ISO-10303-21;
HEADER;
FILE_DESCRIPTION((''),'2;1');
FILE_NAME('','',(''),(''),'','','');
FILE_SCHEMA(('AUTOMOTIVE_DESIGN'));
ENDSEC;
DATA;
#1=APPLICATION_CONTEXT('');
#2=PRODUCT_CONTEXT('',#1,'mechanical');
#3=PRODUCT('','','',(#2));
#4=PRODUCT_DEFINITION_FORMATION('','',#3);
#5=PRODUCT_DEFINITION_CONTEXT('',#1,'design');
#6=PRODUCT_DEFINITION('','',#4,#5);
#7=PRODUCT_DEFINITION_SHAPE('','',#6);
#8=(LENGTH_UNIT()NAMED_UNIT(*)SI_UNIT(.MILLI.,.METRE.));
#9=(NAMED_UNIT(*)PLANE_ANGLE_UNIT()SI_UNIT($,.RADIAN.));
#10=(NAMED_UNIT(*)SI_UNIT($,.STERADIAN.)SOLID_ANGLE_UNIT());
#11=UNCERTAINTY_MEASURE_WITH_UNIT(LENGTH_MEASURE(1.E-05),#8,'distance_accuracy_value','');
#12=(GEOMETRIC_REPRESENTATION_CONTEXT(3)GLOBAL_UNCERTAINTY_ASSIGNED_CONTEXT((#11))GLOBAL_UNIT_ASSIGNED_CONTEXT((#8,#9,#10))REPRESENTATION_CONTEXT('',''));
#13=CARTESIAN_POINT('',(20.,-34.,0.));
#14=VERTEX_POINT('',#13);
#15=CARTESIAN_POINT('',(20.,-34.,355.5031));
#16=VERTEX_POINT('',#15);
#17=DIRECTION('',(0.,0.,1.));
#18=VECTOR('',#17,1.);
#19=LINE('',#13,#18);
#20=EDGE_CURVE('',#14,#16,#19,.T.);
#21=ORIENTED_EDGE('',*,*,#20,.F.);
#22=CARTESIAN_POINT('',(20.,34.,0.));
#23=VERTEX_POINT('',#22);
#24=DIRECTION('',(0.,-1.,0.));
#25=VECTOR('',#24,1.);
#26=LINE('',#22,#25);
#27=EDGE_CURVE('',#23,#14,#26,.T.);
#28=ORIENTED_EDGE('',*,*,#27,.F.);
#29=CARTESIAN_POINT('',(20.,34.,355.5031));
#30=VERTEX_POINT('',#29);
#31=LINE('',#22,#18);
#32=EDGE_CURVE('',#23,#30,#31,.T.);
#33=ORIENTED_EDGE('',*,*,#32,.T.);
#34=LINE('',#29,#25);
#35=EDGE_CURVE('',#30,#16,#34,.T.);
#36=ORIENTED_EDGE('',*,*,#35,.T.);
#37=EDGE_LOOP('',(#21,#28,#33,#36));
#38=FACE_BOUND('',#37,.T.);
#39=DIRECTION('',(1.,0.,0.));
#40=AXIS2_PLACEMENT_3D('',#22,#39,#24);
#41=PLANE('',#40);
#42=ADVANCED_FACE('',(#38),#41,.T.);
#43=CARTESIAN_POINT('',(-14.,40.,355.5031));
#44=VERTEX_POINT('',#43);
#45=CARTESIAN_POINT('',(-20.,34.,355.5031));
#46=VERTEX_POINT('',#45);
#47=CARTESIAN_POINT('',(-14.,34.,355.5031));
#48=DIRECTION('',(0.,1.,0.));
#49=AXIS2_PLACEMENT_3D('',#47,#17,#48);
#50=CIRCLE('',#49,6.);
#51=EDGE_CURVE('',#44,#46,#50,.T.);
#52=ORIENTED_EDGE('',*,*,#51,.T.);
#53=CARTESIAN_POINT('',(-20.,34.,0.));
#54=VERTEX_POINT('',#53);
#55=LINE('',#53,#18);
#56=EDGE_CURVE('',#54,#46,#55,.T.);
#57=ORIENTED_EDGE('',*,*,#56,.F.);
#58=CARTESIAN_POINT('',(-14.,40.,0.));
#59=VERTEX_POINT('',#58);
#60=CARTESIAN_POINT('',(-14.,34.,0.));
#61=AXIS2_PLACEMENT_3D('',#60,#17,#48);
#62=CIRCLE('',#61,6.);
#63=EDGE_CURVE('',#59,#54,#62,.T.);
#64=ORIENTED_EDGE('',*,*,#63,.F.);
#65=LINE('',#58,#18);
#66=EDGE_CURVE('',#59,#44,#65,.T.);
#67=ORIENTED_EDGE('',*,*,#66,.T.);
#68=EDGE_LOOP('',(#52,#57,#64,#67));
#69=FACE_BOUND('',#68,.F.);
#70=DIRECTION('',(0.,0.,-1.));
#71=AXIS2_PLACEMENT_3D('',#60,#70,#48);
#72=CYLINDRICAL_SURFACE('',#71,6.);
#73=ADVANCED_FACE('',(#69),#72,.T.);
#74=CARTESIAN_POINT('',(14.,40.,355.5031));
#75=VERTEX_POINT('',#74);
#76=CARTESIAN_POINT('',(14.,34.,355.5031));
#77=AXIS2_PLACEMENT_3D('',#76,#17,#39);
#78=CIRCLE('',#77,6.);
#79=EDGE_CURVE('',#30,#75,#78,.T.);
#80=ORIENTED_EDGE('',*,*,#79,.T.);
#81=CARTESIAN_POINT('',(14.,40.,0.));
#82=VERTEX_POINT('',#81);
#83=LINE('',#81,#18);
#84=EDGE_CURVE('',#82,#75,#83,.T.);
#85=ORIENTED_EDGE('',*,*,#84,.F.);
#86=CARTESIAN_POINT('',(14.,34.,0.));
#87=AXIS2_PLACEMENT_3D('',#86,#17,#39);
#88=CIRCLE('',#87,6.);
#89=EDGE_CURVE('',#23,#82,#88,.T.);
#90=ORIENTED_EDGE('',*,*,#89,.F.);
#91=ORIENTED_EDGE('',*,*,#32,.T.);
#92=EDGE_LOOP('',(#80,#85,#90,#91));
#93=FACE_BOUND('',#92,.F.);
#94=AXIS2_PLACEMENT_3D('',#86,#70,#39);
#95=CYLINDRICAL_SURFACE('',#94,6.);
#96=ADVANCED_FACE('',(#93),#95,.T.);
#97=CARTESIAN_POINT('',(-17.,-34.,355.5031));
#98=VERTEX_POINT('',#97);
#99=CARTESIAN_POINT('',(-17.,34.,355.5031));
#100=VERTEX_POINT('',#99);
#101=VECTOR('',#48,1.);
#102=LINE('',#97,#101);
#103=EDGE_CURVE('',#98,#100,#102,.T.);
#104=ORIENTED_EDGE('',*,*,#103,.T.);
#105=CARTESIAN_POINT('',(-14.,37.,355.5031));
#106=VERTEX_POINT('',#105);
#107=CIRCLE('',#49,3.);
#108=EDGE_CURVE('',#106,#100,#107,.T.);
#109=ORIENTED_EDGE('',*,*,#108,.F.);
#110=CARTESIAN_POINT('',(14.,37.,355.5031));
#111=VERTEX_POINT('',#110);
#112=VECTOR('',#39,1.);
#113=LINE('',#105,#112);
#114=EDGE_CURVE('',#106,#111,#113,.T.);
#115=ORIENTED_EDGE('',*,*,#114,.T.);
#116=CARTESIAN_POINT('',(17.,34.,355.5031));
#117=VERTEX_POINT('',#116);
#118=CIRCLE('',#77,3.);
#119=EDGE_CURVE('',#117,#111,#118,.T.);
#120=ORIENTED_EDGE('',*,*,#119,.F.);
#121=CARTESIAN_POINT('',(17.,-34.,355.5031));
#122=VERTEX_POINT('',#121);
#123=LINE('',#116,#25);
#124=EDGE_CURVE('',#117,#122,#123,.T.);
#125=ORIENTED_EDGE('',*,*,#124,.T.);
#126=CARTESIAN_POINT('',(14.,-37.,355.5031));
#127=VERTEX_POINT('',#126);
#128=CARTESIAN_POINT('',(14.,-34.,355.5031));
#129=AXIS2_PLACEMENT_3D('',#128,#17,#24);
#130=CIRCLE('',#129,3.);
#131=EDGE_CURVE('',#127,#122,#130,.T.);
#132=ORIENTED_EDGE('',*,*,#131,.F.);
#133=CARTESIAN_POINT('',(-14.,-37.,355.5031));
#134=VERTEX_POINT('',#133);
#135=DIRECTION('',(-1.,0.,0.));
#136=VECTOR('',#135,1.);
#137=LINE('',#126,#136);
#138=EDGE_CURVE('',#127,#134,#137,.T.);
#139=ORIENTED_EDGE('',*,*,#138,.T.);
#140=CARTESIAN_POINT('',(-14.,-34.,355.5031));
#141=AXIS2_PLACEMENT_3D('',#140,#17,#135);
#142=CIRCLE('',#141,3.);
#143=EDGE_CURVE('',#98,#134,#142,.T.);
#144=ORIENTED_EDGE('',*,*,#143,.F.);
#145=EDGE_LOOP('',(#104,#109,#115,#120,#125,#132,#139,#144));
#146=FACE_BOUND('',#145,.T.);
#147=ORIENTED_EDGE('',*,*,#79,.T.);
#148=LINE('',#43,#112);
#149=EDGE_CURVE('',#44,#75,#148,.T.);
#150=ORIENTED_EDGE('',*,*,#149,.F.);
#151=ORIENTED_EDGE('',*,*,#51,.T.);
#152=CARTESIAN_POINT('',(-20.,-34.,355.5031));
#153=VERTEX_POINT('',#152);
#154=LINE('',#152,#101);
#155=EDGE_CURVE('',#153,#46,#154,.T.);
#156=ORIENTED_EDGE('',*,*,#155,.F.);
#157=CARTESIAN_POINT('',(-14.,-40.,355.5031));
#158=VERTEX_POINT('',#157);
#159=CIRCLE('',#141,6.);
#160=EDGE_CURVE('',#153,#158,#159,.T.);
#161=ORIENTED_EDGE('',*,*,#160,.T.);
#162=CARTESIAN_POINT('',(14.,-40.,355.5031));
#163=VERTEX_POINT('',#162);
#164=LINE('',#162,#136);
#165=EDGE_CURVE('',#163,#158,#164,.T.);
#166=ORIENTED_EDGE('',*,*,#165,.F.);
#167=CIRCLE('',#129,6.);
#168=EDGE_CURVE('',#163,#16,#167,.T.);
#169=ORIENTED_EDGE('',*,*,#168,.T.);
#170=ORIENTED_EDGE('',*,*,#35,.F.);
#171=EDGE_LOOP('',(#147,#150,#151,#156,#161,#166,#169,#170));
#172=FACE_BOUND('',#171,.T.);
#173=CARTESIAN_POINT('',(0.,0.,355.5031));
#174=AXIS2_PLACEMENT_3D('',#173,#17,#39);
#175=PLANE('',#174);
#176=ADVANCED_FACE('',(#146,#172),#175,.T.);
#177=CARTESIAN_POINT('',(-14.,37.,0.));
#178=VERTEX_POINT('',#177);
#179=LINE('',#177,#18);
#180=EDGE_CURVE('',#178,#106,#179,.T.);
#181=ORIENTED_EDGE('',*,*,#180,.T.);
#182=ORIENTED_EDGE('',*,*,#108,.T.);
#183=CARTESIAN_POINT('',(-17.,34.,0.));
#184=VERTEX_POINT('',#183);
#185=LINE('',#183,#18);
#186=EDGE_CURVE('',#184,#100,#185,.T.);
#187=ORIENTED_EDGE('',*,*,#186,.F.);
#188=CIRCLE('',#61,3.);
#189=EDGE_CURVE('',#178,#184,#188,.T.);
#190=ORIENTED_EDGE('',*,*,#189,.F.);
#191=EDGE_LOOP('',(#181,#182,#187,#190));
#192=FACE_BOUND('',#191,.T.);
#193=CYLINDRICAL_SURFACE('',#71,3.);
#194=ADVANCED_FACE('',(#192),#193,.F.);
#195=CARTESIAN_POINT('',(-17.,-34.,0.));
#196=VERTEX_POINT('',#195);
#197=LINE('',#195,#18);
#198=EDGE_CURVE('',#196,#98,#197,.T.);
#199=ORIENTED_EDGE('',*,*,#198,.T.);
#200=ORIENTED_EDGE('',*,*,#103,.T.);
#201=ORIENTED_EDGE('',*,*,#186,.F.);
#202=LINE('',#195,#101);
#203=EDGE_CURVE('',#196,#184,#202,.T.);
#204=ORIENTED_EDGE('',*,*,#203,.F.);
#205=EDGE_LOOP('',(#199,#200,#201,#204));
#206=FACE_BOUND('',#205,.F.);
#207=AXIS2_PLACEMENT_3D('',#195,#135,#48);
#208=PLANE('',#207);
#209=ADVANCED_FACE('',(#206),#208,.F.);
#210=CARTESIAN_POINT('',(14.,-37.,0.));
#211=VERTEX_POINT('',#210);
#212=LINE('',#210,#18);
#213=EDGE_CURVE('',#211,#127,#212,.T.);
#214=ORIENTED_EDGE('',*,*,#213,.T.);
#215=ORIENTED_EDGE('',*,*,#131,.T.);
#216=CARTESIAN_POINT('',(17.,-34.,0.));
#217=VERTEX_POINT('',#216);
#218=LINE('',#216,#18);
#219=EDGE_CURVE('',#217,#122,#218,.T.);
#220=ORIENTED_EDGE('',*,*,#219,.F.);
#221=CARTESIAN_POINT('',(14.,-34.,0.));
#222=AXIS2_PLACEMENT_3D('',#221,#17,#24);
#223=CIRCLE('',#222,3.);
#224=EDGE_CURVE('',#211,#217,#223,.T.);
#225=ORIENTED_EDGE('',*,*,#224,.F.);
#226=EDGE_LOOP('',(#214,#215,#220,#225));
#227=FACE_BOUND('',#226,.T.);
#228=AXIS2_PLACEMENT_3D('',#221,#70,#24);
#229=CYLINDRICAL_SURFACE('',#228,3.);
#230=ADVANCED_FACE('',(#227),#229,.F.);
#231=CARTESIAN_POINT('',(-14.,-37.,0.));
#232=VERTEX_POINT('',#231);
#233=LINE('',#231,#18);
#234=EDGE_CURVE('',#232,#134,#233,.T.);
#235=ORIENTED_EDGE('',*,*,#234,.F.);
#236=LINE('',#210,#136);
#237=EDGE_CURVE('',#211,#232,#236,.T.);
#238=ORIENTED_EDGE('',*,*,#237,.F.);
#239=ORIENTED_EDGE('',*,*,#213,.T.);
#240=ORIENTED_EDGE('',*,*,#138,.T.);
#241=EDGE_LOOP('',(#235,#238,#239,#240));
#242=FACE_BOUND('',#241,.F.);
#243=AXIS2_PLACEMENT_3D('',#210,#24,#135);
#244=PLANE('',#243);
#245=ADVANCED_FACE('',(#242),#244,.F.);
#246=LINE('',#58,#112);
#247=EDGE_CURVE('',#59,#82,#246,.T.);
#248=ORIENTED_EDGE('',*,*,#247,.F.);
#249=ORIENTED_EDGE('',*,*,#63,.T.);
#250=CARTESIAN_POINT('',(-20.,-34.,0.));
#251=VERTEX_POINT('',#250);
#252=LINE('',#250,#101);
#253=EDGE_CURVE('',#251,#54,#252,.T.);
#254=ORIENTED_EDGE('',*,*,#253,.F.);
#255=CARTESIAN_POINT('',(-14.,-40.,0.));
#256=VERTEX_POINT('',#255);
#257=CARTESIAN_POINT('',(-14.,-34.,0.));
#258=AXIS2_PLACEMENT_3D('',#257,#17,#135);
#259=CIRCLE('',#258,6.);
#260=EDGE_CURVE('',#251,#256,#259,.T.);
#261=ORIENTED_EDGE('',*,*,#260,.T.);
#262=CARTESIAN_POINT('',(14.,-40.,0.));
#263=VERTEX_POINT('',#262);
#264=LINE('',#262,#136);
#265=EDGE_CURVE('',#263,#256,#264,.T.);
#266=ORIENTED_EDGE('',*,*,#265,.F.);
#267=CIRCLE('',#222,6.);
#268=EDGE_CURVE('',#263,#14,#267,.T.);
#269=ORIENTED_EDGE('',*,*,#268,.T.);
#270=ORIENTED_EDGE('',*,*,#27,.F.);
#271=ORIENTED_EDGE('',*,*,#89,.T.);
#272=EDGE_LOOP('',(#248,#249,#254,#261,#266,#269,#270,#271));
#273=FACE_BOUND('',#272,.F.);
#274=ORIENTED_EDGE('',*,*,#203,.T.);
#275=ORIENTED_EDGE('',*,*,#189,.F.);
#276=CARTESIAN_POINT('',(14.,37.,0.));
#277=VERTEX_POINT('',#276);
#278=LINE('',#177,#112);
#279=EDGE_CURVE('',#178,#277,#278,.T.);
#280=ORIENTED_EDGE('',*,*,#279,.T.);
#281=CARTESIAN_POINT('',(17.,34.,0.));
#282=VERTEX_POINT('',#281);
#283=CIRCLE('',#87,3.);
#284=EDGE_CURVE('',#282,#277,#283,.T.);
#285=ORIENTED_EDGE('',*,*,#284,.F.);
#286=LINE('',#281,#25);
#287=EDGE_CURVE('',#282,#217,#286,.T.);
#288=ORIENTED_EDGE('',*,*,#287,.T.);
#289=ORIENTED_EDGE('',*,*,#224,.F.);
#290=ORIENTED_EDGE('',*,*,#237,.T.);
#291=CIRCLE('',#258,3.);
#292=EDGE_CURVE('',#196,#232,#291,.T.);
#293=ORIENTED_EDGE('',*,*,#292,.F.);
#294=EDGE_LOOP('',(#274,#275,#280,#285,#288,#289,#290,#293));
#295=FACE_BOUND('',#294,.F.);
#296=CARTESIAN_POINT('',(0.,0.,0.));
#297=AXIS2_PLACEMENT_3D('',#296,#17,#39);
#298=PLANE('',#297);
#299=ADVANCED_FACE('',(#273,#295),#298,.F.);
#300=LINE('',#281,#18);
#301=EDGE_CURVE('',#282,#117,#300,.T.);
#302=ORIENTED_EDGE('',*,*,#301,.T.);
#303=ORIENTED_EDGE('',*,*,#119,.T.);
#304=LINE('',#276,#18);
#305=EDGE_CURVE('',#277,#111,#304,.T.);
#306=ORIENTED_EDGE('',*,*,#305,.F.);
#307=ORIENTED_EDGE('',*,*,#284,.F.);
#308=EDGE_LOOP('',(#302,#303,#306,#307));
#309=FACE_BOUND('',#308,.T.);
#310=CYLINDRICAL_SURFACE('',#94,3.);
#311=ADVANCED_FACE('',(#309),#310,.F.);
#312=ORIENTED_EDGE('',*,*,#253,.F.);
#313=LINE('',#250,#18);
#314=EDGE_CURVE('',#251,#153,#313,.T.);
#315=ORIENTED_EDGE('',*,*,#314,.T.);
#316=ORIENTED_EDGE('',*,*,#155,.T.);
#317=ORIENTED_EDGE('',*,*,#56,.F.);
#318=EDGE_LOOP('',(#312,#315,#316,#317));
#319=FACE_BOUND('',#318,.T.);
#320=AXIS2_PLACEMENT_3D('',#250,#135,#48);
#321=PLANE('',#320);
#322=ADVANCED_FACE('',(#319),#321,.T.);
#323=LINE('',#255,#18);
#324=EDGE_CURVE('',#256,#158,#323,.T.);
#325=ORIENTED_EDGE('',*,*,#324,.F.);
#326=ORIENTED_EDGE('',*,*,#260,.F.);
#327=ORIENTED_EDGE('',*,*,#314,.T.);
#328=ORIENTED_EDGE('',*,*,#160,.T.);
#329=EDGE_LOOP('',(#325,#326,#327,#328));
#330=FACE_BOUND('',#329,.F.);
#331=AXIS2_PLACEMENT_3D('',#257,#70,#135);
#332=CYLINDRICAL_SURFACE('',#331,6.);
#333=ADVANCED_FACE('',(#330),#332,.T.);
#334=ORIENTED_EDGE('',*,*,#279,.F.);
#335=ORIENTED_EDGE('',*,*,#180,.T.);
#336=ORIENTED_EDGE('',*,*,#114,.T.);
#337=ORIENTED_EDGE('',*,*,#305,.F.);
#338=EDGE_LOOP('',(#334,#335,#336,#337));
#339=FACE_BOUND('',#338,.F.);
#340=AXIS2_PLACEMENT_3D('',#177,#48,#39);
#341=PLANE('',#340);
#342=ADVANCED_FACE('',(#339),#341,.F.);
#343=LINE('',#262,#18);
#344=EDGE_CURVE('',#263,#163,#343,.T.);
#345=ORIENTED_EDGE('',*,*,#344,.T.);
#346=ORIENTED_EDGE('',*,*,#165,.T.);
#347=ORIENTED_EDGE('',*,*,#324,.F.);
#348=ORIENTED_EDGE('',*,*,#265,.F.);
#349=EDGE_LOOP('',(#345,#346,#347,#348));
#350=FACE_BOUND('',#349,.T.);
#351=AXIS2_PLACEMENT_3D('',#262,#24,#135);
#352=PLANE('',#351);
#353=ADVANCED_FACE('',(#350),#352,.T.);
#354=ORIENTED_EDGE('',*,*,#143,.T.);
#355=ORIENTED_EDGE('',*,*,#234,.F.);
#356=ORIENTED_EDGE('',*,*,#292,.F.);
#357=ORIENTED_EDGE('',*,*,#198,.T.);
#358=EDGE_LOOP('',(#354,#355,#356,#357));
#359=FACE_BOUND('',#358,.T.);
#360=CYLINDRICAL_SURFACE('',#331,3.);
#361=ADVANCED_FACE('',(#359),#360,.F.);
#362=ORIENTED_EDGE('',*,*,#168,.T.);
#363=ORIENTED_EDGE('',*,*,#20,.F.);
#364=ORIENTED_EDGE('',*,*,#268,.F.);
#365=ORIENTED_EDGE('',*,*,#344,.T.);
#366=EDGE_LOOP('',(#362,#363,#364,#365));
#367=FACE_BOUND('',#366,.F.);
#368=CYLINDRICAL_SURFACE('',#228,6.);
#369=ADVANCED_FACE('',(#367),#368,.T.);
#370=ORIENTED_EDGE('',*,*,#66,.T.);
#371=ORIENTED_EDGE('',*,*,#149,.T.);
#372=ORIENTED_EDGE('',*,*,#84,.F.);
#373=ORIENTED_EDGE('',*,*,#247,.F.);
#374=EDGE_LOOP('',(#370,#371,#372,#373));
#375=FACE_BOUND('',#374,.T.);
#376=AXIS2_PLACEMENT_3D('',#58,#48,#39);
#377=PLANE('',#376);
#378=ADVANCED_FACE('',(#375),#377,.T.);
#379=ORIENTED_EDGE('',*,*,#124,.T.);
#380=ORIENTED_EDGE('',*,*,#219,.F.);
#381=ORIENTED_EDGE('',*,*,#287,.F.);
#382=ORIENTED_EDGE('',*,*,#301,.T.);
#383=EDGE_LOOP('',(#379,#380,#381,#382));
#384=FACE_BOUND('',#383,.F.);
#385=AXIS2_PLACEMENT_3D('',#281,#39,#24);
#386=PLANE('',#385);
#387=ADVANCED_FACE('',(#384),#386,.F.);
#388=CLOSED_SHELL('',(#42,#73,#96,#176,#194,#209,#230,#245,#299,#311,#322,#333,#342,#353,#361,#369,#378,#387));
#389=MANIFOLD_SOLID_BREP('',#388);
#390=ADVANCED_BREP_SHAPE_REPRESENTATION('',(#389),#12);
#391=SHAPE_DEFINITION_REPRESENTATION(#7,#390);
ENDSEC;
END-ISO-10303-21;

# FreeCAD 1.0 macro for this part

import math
import FreeCAD as App
import Part
import Sketcher
from FreeCAD import Vector
Q = App.Units.Quantity

doc = App.newDocument("Part")
body = doc.addObject("PartDesign::Body", "Body")

# Sketch on XY plane
sketch1 = body.newObject("Sketcher::SketchObject", "Sketch")
sketch1.AttachmentSupport = (doc.getObject("XY_Plane"), [""])
sketch1.MapMode = "FlatFace"
sketch1.addGeometry([
    Part.LineSegment(Vector(-20, 34, 0), Vector(-20, -34, 0)),  # 0
    Part.ArcOfCircle(Part.Circle(Vector(-14, -34, 0), Vector(0, 0, 1), 6), math.radians(180), math.radians(270)),  # 1
    Part.LineSegment(Vector(-14, -40, 0), Vector(14, -40, 0)),  # 2
    Part.ArcOfCircle(Part.Circle(Vector(14, -34, 0), Vector(0, 0, 1), 6), math.radians(-90), math.radians(0)),  # 3
    Part.LineSegment(Vector(20, -34, 0), Vector(20, 34, 0)),  # 4
    Part.ArcOfCircle(Part.Circle(Vector(14, 34, 0), Vector(0, 0, 1), 6), math.radians(0), math.radians(90)),  # 5
    Part.LineSegment(Vector(14, 40, 0), Vector(-14, 40, 0)),  # 6
    Part.ArcOfCircle(Part.Circle(Vector(-14, 34, 0), Vector(0, 0, 1), 6), math.radians(90), math.radians(180)),  # 7
    Part.ArcOfCircle(Part.Circle(Vector(-14, 34, 0), Vector(0, 0, 1), 3), math.radians(90), math.radians(180)),  # 8
    Part.LineSegment(Vector(-14, 37, 0), Vector(14, 37, 0)),  # 9
    Part.ArcOfCircle(Part.Circle(Vector(14, 34, 0), Vector(0, 0, 1), 3), math.radians(0), math.radians(90)),  # 10
    Part.LineSegment(Vector(17, 34, 0), Vector(17, -34, 0)),  # 11
    Part.ArcOfCircle(Part.Circle(Vector(14, -34, 0), Vector(0, 0, 1), 3), math.radians(-90), math.radians(0)),  # 12
    Part.LineSegment(Vector(14, -37, 0), Vector(-14, -37, 0)),  # 13
    Part.ArcOfCircle(Part.Circle(Vector(-14, -34, 0), Vector(0, 0, 1), 3), math.radians(180), math.radians(270)),  # 14
    Part.LineSegment(Vector(-17, -34, 0), Vector(-17, 34, 0)),  # 15
], False)
sketch1.addConstraint([
    Sketcher.Constraint("Tangent", 0, 2, 1, 1),
    Sketcher.Constraint("Tangent", 1, 2, 2, 1),
    Sketcher.Constraint("Tangent", 2, 2, 3, 1),
    Sketcher.Constraint("Tangent", 3, 2, 4, 1),
    Sketcher.Constraint("Tangent", 4, 2, 5, 1),
    Sketcher.Constraint("Tangent", 5, 2, 6, 1),
    Sketcher.Constraint("Tangent", 6, 2, 7, 1),
    Sketcher.Constraint("Tangent", 7, 2, 0, 1),
    Sketcher.Constraint("Tangent", 8, 1, 9, 1),
    Sketcher.Constraint("Tangent", 9, 2, 10, 2),
    Sketcher.Constraint("Tangent", 10, 1, 11, 1),
    Sketcher.Constraint("Tangent", 11, 2, 12, 2),
    Sketcher.Constraint("Tangent", 12, 1, 13, 1),
    Sketcher.Constraint("Tangent", 13, 2, 14, 2),
    Sketcher.Constraint("Tangent", 14, 1, 15, 1),
    Sketcher.Constraint("Tangent", 15, 2, 8, 2),
    Sketcher.Constraint("Vertical", 0),
    Sketcher.Constraint("Horizontal", 2),
    Sketcher.Constraint("Vertical", 4),
    Sketcher.Constraint("Horizontal", 6),
    Sketcher.Constraint("Horizontal", 9),
    Sketcher.Constraint("Vertical", 11),
    Sketcher.Constraint("Horizontal", 13),
    Sketcher.Constraint("Vertical", 15),
    Sketcher.Constraint("Coincident", 8, 3, 7, 3),
    Sketcher.Constraint("Coincident", 10, 3, 5, 3),
    Sketcher.Constraint("Coincident", 12, 3, 3, 3),
    Sketcher.Constraint("Equal", 1, 3),
    Sketcher.Constraint("Equal", 3, 5),
    Sketcher.Constraint("Equal", 5, 7),
    Sketcher.Constraint("Equal", 12, 14),
    Sketcher.Constraint("Symmetric", 1, 3, 5, 3, -1, 1),
    Sketcher.Constraint("Radius", 1, Q("6 mm")),
    Sketcher.Constraint("Radius", 8, Q("3 mm")),
    Sketcher.Constraint("DistanceX", 0, 2, -1, 1, Q("20 mm")),
    Sketcher.Constraint("DistanceY", 1, 2, -1, 1, Q("40 mm")),
])
pad1 = body.newObject("PartDesign::Pad", "Pad")
pad1.Profile = sketch1
pad1.Length = 355.5031

doc.recompute()
